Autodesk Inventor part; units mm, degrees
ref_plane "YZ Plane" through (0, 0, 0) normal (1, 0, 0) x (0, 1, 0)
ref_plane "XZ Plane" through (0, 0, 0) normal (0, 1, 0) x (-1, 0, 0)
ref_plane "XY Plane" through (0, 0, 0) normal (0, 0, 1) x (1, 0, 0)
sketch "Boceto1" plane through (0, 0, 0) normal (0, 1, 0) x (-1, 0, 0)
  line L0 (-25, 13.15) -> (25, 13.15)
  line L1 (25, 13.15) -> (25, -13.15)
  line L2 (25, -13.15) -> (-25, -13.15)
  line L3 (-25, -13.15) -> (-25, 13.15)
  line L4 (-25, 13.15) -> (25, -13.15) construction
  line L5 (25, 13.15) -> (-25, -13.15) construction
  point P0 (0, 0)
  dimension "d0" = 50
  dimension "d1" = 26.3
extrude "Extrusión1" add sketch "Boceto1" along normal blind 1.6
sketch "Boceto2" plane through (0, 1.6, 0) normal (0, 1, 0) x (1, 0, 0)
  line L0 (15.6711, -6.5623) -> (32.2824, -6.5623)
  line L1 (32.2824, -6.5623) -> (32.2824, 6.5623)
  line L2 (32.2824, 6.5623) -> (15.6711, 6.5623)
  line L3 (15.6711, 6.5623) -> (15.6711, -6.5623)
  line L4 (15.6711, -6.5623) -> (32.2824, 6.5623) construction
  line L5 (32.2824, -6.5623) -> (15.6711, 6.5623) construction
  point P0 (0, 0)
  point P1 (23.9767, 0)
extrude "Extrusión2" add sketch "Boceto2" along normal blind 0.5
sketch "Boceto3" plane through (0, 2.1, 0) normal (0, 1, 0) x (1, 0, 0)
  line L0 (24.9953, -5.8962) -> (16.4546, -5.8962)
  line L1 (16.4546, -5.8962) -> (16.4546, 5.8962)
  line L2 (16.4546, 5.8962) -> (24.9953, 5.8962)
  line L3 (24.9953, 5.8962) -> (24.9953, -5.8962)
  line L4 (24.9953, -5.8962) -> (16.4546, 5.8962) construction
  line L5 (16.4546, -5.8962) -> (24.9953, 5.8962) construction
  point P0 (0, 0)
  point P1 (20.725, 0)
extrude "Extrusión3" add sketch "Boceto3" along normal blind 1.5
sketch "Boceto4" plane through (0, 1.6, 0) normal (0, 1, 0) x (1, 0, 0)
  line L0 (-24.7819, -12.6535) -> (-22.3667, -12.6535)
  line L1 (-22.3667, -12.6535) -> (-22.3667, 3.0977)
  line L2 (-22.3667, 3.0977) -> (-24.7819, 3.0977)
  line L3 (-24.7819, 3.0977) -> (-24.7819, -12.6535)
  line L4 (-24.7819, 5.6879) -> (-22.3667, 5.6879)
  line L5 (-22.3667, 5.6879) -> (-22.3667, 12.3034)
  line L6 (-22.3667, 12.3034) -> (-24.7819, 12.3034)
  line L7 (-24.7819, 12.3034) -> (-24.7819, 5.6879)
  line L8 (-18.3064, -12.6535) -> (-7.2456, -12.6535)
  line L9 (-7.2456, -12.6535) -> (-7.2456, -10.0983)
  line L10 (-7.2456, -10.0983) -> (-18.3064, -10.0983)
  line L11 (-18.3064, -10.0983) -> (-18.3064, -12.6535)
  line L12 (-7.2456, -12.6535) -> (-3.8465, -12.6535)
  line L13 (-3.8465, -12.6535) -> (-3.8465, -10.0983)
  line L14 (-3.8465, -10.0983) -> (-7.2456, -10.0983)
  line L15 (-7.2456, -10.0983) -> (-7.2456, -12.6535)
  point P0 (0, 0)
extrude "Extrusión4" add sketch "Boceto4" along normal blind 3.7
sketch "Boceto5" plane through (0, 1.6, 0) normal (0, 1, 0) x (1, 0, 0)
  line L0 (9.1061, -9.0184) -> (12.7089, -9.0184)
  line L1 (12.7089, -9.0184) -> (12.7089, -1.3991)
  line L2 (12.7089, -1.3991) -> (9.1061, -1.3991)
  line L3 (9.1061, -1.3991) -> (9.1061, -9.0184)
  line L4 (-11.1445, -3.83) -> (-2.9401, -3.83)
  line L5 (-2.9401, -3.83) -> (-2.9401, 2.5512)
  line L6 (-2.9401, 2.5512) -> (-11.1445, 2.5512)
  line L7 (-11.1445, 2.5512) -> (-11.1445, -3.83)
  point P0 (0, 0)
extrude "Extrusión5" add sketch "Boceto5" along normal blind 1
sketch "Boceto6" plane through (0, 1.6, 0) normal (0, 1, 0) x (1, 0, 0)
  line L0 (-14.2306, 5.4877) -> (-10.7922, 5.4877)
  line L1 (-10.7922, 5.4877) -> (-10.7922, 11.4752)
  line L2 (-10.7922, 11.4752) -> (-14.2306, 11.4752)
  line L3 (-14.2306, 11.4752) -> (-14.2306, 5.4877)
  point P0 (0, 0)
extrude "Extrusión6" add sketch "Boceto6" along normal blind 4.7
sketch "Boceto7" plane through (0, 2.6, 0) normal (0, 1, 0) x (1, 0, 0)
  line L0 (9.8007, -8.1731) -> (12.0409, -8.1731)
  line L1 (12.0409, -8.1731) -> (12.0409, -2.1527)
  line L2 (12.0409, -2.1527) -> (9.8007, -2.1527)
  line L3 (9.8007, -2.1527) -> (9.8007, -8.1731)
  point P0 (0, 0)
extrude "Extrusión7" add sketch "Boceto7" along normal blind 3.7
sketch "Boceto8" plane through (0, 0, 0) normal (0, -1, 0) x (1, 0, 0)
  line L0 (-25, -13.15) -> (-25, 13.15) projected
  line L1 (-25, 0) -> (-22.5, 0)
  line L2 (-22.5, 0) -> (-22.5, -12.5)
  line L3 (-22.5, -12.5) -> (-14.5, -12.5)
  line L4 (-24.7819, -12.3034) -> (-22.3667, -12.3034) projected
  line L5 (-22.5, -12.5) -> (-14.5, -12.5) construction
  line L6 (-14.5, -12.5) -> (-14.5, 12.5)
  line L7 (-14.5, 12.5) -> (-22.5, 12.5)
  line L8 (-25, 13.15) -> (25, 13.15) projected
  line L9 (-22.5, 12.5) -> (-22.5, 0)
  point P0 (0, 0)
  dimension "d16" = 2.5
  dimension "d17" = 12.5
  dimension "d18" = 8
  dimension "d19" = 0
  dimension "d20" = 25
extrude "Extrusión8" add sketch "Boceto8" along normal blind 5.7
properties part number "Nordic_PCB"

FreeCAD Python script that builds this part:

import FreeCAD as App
import Part
import Sketcher


def add_polygon(sketch, points):
    """Adds a closed chain of lines whose ends are joined by coincident constraints."""
    first, n = sketch.GeometryCount, len(points)
    for a, b in zip(points, points[1:] + points[:1]):
        sketch.addGeometry(Part.LineSegment(App.Vector(*a, 0), App.Vector(*b, 0)), False)
    for i in range(n):
        sketch.addConstraint(Sketcher.Constraint("Coincident", first + i, 2, first + (i + 1) % n, 1))

doc = App.newDocument("Part")
body = doc.addObject("PartDesign::Body", "Body")

sketch1 = body.newObject("Sketcher::SketchObject", "Sketch")
sketch1.AttachmentSupport = (doc.getObject("XZ_Plane"), [""])
sketch1.MapMode = "FlatFace"
add_polygon(sketch1, [(-25, 13.15), (25, 13.15), (25, -13.15), (-25, -13.15)])
sketch1.addConstraint([
    Sketcher.Constraint("Horizontal", 0),
    Sketcher.Constraint("Vertical", 1),
    Sketcher.Constraint("Horizontal", 2),
    Sketcher.Constraint("Vertical", 3),
    Sketcher.Constraint("Symmetric", 0, 2, 2, 2, -1, 1),
    Sketcher.Constraint("DistanceX", 0, 1, 0, 2, 50.0),
    Sketcher.Constraint("DistanceY", 1, 2, 1, 1, 26.3),
])
pad1 = body.newObject("PartDesign::Pad", "Pad")
pad1.Profile = sketch1
pad1.Length = 1.6
pad1.Reversed = True

sketch2 = body.newObject("Sketcher::SketchObject", "Sketch001")
sketch2.AttachmentSupport = (doc.getObject("XZ_Plane"), [""])
sketch2.MapMode = "FlatFace"
sketch2.AttachmentOffset = App.Placement(App.Vector(0, 0, -1.6), App.Rotation())
add_polygon(sketch2, [(15.6711, -6.5623), (15.6711, 6.5623), (32.2824, 6.5623), (32.2824, -6.5623)])
sketch2.addConstraint([
    Sketcher.Constraint("Vertical", 0),
    Sketcher.Constraint("Horizontal", 1),
    Sketcher.Constraint("Vertical", 2),
    Sketcher.Constraint("Horizontal", 3),
    Sketcher.Constraint("DistanceX", 1, 1, 1, 2, 16.6113),
    Sketcher.Constraint("DistanceY", 0, 1, 0, 2, 13.1246),
    Sketcher.Constraint("DistanceX", -1, 1, 0, 2, 15.671),
    Sketcher.Constraint("DistanceY", -1, 1, 0, 2, 6.5623),
])
pad2 = body.newObject("PartDesign::Pad", "Pad001")
pad2.Profile = sketch2
pad2.Length = 0.5
pad2.Reversed = True

sketch3 = body.newObject("Sketcher::SketchObject", "Sketch002")
sketch3.AttachmentSupport = (doc.getObject("XZ_Plane"), [""])
sketch3.MapMode = "FlatFace"
sketch3.AttachmentOffset = App.Placement(App.Vector(0, 0, -2.1), App.Rotation())
add_polygon(sketch3, [(16.4546, 5.8962), (24.9953, 5.8962), (24.9953, -5.8962), (16.4546, -5.8962)])
sketch3.addConstraint([
    Sketcher.Constraint("Horizontal", 0),
    Sketcher.Constraint("Vertical", 1),
    Sketcher.Constraint("Horizontal", 2),
    Sketcher.Constraint("Vertical", 3),
    Sketcher.Constraint("DistanceX", 0, 1, 0, 2, 8.5407),
    Sketcher.Constraint("DistanceY", 1, 2, 1, 1, 11.7924),
    Sketcher.Constraint("DistanceX", -1, 1, 0, 2, 24.9953),
    Sketcher.Constraint("DistanceY", -1, 1, 0, 2, 5.8962),
])
pad3 = body.newObject("PartDesign::Pad", "Pad002")
pad3.Profile = sketch3
pad3.Length = 1.5
pad3.Reversed = True

sketch4 = body.newObject("Sketcher::SketchObject", "Sketch003")
sketch4.AttachmentSupport = (doc.getObject("XZ_Plane"), [""])
sketch4.MapMode = "FlatFace"
sketch4.AttachmentOffset = App.Placement(App.Vector(0, 0, -1.6), App.Rotation())
add_polygon(sketch4, [(-24.7819, -3.0977), (-24.7819, 12.6535), (-22.3667, 12.6535), (-22.3667, -3.0977)])
add_polygon(sketch4, [(-24.7819, -12.3034), (-24.7819, -5.6879), (-22.3667, -5.6879), (-22.3667, -12.3034)])
add_polygon(sketch4, [(-18.3064, 10.0983), (-18.3064, 12.6535), (-3.8465, 12.6535), (-3.8465, 10.0983)])
sketch4.addConstraint([
    Sketcher.Constraint("Vertical", 0),
    Sketcher.Constraint("Horizontal", 1),
    Sketcher.Constraint("Vertical", 2),
    Sketcher.Constraint("Horizontal", 3),
    Sketcher.Constraint("Vertical", 4),
    Sketcher.Constraint("Horizontal", 5),
    Sketcher.Constraint("Vertical", 6),
    Sketcher.Constraint("Horizontal", 7),
    Sketcher.Constraint("Vertical", 8),
    Sketcher.Constraint("Horizontal", 9),
    Sketcher.Constraint("Vertical", 10),
    Sketcher.Constraint("Horizontal", 11),
    Sketcher.Constraint("Horizontal", 1, 2, 8, 2),
    Sketcher.Constraint("Vertical", 3, 2, 4, 2),
    Sketcher.Constraint("Vertical", 2, 2, 5, 2),
    Sketcher.Constraint("DistanceX", 9, 1, 9, 2, 14.46),
    Sketcher.Constraint("DistanceX", 1, 1, 1, 2, 2.4152),
    Sketcher.Constraint("DistanceY", 0, 1, 0, 2, 15.7512),
    Sketcher.Constraint("DistanceY", 4, 1, 4, 2, 6.6155),
    Sketcher.Constraint("DistanceY", 8, 1, 8, 2, 2.5552),
    Sketcher.Constraint("DistanceX", 0, 2, -1, 1, 24.782),
    Sketcher.Constraint("DistanceY", 4, 2, -1, 1, 5.688),
    Sketcher.Constraint("DistanceY", 6, 2, 1, 2, 24.957),
    Sketcher.Constraint("DistanceX", 8, 2, -1, 1, 18.3064),
])
pad4 = body.newObject("PartDesign::Pad", "Pad003")
pad4.Profile = sketch4
pad4.Length = 3.7
pad4.Reversed = True

sketch5 = body.newObject("Sketcher::SketchObject", "Sketch004")
sketch5.AttachmentSupport = (doc.getObject("XZ_Plane"), [""])
sketch5.MapMode = "FlatFace"
sketch5.AttachmentOffset = App.Placement(App.Vector(0, 0, -1.6), App.Rotation())
add_polygon(sketch5, [(9.1061, 1.3991), (9.1061, 9.0184), (12.7089, 9.0184), (12.7089, 1.3991)])
add_polygon(sketch5, [(-11.1445, -2.5512), (-11.1445, 3.83), (-2.9401, 3.83), (-2.9401, -2.5512)])
sketch5.addConstraint([
    Sketcher.Constraint("Vertical", 0),
    Sketcher.Constraint("Horizontal", 1),
    Sketcher.Constraint("Vertical", 2),
    Sketcher.Constraint("Horizontal", 3),
    Sketcher.Constraint("Vertical", 4),
    Sketcher.Constraint("Horizontal", 5),
    Sketcher.Constraint("Vertical", 6),
    Sketcher.Constraint("Horizontal", 7),
    Sketcher.Constraint("DistanceY", -1, 1, 4, 2, 3.83),
    Sketcher.Constraint("DistanceX", 5, 2, -1, 1, 2.94),
    Sketcher.Constraint("DistanceX", 1, 1, 1, 2, 3.6028),
    Sketcher.Constraint("DistanceX", 5, 1, 5, 2, 8.2044),
    Sketcher.Constraint("DistanceY", 0, 1, 0, 2, 7.6193),
    Sketcher.Constraint("DistanceY", 4, 1, 4, 2, 6.3812),
    Sketcher.Constraint("DistanceX", -1, 1, 0, 2, 9.106),
    Sketcher.Constraint("DistanceY", -1, 1, 2, 2, 1.399),
])
pad5 = body.newObject("PartDesign::Pad", "Pad004")
pad5.Profile = sketch5
pad5.Length = 1
pad5.Reversed = True

sketch6 = body.newObject("Sketcher::SketchObject", "Sketch005")
sketch6.AttachmentSupport = (doc.getObject("XZ_Plane"), [""])
sketch6.MapMode = "FlatFace"
sketch6.AttachmentOffset = App.Placement(App.Vector(0, 0, -1.6), App.Rotation())
add_polygon(sketch6, [(-14.2306, -11.4752), (-14.2306, -5.4877), (-10.7922, -5.4877), (-10.7922, -11.4752)])
sketch6.addConstraint([
    Sketcher.Constraint("Vertical", 0),
    Sketcher.Constraint("Horizontal", 1),
    Sketcher.Constraint("Vertical", 2),
    Sketcher.Constraint("Horizontal", 3),
    Sketcher.Constraint("DistanceX", 1, 1, 1, 2, 3.4384),
    Sketcher.Constraint("DistanceY", 0, 1, 0, 2, 5.9875),
    Sketcher.Constraint("DistanceX", 0, 2, -1, 1, 14.2306),
    Sketcher.Constraint("DistanceY", 0, 2, -1, 1, 5.4877),
])
pad6 = body.newObject("PartDesign::Pad", "Pad005")
pad6.Profile = sketch6
pad6.Length = 4.7
pad6.Reversed = True

sketch7 = body.newObject("Sketcher::SketchObject", "Sketch006")
sketch7.AttachmentSupport = (doc.getObject("XZ_Plane"), [""])
sketch7.MapMode = "FlatFace"
sketch7.AttachmentOffset = App.Placement(App.Vector(0, 0, -2.6), App.Rotation())
add_polygon(sketch7, [(9.8007, 2.1527), (9.8007, 8.1731), (12.0409, 8.1731), (12.0409, 2.1527)])
sketch7.addConstraint([
    Sketcher.Constraint("Vertical", 0),
    Sketcher.Constraint("Horizontal", 1),
    Sketcher.Constraint("Vertical", 2),
    Sketcher.Constraint("Horizontal", 3),
    Sketcher.Constraint("DistanceX", 1, 1, 1, 2, 2.2402),
    Sketcher.Constraint("DistanceY", 0, 1, 0, 2, 6.0204),
    Sketcher.Constraint("DistanceY", -1, 1, 0, 2, 8.173),
    Sketcher.Constraint("DistanceX", -1, 1, 1, 2, 12.041),
])
pad7 = body.newObject("PartDesign::Pad", "Pad006")
pad7.Profile = sketch7
pad7.Length = 3.7
pad7.Reversed = True

sketch8 = body.newObject("Sketcher::SketchObject", "Sketch007")
sketch8.AttachmentSupport = (doc.getObject("XZ_Plane"), [""])
sketch8.MapMode = "FlatFace"
add_polygon(sketch8, [(-22.5, 12.5), (-22.5, -12.5), (-14.5, -12.5), (-14.5, 12.5)])
sketch8.addConstraint([
    Sketcher.Constraint("Vertical", 0),
    Sketcher.Constraint("Horizontal", 1),
    Sketcher.Constraint("Vertical", 2),
    Sketcher.Constraint("Horizontal", 3),
    Sketcher.Constraint("DistanceX", 1, 1, 1, 2, 8.0),
    Sketcher.Constraint("DistanceY", 0, 2, 0, 1, 25.0),
    Sketcher.Constraint("DistanceY", 0, 2, -1, 1, 12.5),
    Sketcher.Constraint("DistanceX", 0, 2, -1, 1, 22.5),
])
pad8 = body.newObject("PartDesign::Pad", "Pad007")
pad8.Profile = sketch8
pad8.Length = 5.7

doc.recompute()
